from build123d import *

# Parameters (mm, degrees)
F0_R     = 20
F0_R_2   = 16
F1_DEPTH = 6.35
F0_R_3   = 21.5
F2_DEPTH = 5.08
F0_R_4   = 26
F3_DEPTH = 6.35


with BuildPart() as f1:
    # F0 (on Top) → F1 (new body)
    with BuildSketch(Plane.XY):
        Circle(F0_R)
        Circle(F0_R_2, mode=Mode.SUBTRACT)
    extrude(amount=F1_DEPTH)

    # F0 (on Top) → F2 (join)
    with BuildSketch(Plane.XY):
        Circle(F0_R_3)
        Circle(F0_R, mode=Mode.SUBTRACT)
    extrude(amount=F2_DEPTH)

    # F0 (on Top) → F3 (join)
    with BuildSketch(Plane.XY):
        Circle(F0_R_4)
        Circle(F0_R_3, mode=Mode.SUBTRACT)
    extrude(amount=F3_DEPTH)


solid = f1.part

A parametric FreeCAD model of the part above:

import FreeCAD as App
import Part
import Sketcher
from FreeCAD import Vector

doc = App.newDocument("Part")
body = doc.addObject("PartDesign::Body", "Body")

sketch1 = body.newObject("Sketcher::SketchObject", "Sketch")
sketch1.AttachmentSupport = (doc.getObject("XY_Plane"), [""])
sketch1.MapMode = "FlatFace"
sketch1.addGeometry(Part.Circle(Vector(0, 0, 0), Vector(0, 0, 1), 20), False)
sketch1.addGeometry(Part.Circle(Vector(0, 0, 0), Vector(0, 0, 1), 16), False)
sketch1.addConstraint(Sketcher.Constraint("Coincident", 0, 3, -1, 1))
sketch1.addConstraint(Sketcher.Constraint("Coincident", 1, 3, -1, 1))
sketch1.addConstraint(Sketcher.Constraint("Diameter", 0, 40.0))
sketch1.addConstraint(Sketcher.Constraint("Diameter", 1, 32.0))
pad1 = body.newObject("PartDesign::Pad", "Pad")
pad1.Profile = sketch1
pad1.Length = 6.35

sketch2 = body.newObject("Sketcher::SketchObject", "Sketch001")
sketch2.AttachmentSupport = (doc.getObject("XY_Plane"), [""])
sketch2.MapMode = "FlatFace"
sketch2.addGeometry(Part.Circle(Vector(0, 0, 0), Vector(0, 0, 1), 22), False)
sketch2.addGeometry(Part.Circle(Vector(0, 0, 0), Vector(0, 0, 1), 20), False)
sketch2.addConstraint(Sketcher.Constraint("Coincident", 0, 3, -1, 1))
sketch2.addConstraint(Sketcher.Constraint("Coincident", 1, 3, -1, 1))
sketch2.addConstraint(Sketcher.Constraint("Diameter", 0, 43.0))
sketch2.addConstraint(Sketcher.Constraint("Diameter", 1, 40.0))
pad2 = body.newObject("PartDesign::Pad", "Pad001")
pad2.Profile = sketch2
pad2.Length = 5.08

sketch3 = body.newObject("Sketcher::SketchObject", "Sketch002")
sketch3.AttachmentSupport = (doc.getObject("XY_Plane"), [""])
sketch3.MapMode = "FlatFace"
sketch3.addGeometry(Part.Circle(Vector(0, 0, 0), Vector(0, 0, 1), 26), False)
sketch3.addGeometry(Part.Circle(Vector(0, 0, 0), Vector(0, 0, 1), 22), False)
sketch3.addConstraint(Sketcher.Constraint("Coincident", 0, 3, -1, 1))
sketch3.addConstraint(Sketcher.Constraint("Coincident", 1, 3, -1, 1))
sketch3.addConstraint(Sketcher.Constraint("Diameter", 0, 52.0))
sketch3.addConstraint(Sketcher.Constraint("Diameter", 1, 43.0))
pad3 = body.newObject("PartDesign::Pad", "Pad002")
pad3.Profile = sketch3
pad3.Length = 6.35

doc.recompute()
